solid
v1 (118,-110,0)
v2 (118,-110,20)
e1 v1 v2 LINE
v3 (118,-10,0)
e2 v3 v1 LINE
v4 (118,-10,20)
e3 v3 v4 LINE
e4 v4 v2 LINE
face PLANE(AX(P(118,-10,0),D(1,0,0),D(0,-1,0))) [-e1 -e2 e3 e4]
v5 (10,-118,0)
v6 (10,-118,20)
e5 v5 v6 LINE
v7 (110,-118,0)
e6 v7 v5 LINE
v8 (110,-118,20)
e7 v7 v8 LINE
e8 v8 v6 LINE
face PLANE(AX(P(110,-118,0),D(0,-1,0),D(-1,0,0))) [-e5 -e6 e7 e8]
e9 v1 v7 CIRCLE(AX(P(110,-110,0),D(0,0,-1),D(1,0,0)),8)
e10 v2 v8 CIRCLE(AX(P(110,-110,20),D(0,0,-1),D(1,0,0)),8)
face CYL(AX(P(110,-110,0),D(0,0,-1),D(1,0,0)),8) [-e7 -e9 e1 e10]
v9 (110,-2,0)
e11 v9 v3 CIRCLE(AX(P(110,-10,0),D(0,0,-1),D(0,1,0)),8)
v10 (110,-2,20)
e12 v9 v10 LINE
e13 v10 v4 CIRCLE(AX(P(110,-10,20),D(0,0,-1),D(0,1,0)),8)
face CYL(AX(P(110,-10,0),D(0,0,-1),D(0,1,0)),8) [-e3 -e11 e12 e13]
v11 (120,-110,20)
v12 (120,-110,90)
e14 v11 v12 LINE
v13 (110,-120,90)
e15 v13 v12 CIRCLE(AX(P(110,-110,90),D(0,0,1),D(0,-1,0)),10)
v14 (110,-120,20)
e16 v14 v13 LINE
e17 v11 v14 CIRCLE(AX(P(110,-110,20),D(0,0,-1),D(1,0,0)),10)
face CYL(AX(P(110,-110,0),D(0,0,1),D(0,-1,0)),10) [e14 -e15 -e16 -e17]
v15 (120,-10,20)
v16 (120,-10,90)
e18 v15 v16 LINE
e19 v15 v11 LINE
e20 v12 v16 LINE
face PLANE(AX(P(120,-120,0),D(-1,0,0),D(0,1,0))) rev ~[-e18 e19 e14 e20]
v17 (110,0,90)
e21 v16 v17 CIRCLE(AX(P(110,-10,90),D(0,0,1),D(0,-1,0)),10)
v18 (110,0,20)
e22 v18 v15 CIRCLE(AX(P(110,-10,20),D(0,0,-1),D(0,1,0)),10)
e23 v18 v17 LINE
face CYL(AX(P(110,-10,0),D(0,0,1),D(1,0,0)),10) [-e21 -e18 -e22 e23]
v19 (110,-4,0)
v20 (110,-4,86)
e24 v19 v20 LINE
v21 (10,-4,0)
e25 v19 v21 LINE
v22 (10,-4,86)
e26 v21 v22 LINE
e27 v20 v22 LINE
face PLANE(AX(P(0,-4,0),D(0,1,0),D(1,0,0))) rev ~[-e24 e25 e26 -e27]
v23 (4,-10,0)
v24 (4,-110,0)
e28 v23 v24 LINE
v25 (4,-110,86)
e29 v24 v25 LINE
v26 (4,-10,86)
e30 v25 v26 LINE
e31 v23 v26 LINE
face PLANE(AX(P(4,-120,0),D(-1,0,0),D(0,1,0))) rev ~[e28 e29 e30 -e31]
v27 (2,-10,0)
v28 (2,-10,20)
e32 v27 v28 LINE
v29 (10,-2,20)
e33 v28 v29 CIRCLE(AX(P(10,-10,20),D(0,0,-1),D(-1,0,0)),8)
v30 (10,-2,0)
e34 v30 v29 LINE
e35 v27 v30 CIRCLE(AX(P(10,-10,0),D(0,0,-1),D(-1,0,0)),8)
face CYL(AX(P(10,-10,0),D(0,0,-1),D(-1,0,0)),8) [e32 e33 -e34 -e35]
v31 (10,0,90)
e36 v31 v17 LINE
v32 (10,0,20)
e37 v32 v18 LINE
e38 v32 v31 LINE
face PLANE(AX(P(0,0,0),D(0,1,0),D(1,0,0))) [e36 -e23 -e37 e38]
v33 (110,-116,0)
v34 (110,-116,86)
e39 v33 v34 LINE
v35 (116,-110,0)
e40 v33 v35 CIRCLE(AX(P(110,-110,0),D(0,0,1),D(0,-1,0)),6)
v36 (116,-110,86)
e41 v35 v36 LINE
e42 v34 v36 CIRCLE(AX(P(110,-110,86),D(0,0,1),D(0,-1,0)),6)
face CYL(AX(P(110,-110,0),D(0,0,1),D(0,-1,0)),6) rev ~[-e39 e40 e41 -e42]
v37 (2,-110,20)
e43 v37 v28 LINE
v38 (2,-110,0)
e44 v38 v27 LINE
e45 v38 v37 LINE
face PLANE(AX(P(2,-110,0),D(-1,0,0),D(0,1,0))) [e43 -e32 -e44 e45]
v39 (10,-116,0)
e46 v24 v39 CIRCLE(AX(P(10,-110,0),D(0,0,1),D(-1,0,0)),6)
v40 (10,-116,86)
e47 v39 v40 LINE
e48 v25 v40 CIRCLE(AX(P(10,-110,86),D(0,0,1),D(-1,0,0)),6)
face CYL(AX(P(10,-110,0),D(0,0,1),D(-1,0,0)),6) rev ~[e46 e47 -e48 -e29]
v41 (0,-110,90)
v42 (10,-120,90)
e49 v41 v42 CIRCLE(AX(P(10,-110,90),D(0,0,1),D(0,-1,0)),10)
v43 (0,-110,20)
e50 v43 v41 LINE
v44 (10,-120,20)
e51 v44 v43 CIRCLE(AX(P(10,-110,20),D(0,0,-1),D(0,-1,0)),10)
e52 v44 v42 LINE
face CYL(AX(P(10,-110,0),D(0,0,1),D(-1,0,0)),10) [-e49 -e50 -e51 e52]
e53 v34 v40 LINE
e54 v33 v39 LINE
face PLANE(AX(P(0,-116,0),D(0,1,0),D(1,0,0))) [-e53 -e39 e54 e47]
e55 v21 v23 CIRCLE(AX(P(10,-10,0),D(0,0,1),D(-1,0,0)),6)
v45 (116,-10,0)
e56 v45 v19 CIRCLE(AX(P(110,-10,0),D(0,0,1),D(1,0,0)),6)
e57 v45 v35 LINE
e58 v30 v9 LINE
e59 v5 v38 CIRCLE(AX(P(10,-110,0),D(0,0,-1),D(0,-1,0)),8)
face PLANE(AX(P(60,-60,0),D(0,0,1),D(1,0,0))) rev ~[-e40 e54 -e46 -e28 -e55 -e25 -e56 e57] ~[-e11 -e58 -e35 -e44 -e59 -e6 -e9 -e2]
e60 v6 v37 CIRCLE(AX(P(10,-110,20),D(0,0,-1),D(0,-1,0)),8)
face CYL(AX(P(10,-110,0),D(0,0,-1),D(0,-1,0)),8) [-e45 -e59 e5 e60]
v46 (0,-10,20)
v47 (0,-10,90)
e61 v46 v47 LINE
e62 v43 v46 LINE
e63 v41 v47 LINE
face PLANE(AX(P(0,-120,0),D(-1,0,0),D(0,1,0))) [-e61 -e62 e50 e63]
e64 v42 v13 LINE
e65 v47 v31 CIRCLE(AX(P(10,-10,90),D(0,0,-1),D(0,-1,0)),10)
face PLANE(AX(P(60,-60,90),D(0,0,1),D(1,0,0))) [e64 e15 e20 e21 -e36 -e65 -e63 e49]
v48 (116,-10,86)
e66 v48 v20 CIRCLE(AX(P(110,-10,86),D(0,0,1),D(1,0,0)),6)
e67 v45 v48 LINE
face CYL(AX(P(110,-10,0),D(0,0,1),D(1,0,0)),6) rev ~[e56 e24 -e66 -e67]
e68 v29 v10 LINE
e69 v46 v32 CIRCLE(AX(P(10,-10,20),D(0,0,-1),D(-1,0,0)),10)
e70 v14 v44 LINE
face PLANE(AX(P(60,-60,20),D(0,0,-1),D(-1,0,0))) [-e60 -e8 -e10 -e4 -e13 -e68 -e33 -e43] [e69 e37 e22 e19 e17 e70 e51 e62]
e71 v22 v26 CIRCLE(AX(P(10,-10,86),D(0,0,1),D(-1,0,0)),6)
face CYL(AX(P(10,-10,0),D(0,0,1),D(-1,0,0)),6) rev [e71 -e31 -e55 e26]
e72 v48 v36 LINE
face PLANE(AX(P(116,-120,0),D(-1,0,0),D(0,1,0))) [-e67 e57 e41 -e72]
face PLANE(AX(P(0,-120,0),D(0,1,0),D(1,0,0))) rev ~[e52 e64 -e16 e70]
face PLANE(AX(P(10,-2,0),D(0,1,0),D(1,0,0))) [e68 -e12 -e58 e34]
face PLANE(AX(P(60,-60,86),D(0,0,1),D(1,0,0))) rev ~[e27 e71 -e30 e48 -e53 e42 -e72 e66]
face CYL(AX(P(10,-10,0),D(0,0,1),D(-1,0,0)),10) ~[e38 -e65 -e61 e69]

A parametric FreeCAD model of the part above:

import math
import FreeCAD as App
import Part
import Sketcher


def edges_at(feature, points):
    """Names of the edges that pass closest to the given points."""
    edges = feature.Shape.Edges
    near = lambda p: min(range(len(edges)), key=lambda i: edges[i].distToShape(Part.Vertex(*p))[0])
    return sorted({f"Edge{near(p) + 1}" for p in points})


def faces_at(feature, points):
    """Names of the faces that lie closest to the given points."""
    faces = feature.Shape.Faces
    near = lambda p: min(range(len(faces)), key=lambda i: faces[i].distToShape(Part.Vertex(*p))[0])
    return sorted({f"Face{near(p) + 1}" for p in points})

doc = App.newDocument("Part")
body = doc.addObject("PartDesign::Body", "Body")

# Sketch on XY plane
sketch1 = body.newObject("Sketcher::SketchObject", "Sketch")
sketch1.AttachmentSupport = (doc.getObject("XY_Plane"), [""])
sketch1.MapMode = "FlatFace"
sketch1.addGeometry([
    Part.LineSegment(App.Vector(0, 0, 0), App.Vector(0, -120, 0)),
    Part.LineSegment(App.Vector(0, -120, 0), App.Vector(120, -120, 0)),
    Part.LineSegment(App.Vector(120, -120, 0), App.Vector(120, 0, 0)),
    Part.LineSegment(App.Vector(120, 0, 0), App.Vector(0, 0, 0)),
], False)
sketch1.addConstraint([
    Sketcher.Constraint("Coincident", 0, 2, 1, 1),
    Sketcher.Constraint("Coincident", 1, 2, 2, 1),
    Sketcher.Constraint("Coincident", 2, 2, 3, 1),
    Sketcher.Constraint("Coincident", 3, 2, 0, 1),
    Sketcher.Constraint("Vertical", 0),
    Sketcher.Constraint("Horizontal", 1),
    Sketcher.Constraint("Vertical", 2),
    Sketcher.Constraint("Horizontal", 3),
    Sketcher.Constraint("Coincident", 3, 2, -1, 1),
    Sketcher.Constraint("Equal", 3, 0),
    Sketcher.Constraint("DistanceX", 1, 1, 1, 2, 120.0),
])
pad1 = body.newObject("PartDesign::Pad", "Pad")
pad1.Profile = sketch1
pad1.Length = 90
doc.recompute()

fillet = body.newObject("PartDesign::Fillet", "Fillet")
fillet.Base = (pad1, edges_at(pad1, [
    (0, 0, 45),
    (120, 0, 45),
    (120, -120, 45),
    (0, -120, 45),
]))
fillet.Radius = 10
doc.recompute()

thickness = body.newObject("PartDesign::Thickness", "Thickness")
thickness.Base = (fillet, faces_at(fillet, [(60, -60, 0)]))
thickness.Value = 4
thickness.Reversed = True
thickness.Join = "Intersection"

# Sketch on XY plane
sketch2 = body.newObject("Sketcher::SketchObject", "Sketch001")
sketch2.AttachmentSupport = (doc.getObject("XY_Plane"), [""])
sketch2.MapMode = "FlatFace"
sketch2.addGeometry([
    Part.LineSegment(App.Vector(120, -10, 0), App.Vector(120, -110, 0)),  # 0
    Part.ArcOfCircle(Part.Circle(App.Vector(110, -110, 0), App.Vector(0, 0, 1), 10), math.radians(-90), math.radians(0)),  # 1
    Part.LineSegment(App.Vector(110, -120, 0), App.Vector(10, -120, 0)),  # 2
    Part.ArcOfCircle(Part.Circle(App.Vector(10, -110, 0), App.Vector(0, 0, 1), 10), math.radians(180), math.radians(270)),  # 3
    Part.LineSegment(App.Vector(0, -110, 0), App.Vector(0, -10, 0)),  # 4
    Part.ArcOfCircle(Part.Circle(App.Vector(10, -10, 0), App.Vector(0, 0, 1), 10), math.radians(90), math.radians(180)),  # 5
    Part.LineSegment(App.Vector(10, 0, 0), App.Vector(110, 0, 0)),  # 6
    Part.ArcOfCircle(Part.Circle(App.Vector(110, -10, 0), App.Vector(0, 0, 1), 10), math.radians(0), math.radians(90)),  # 7
    Part.LineSegment(App.Vector(118, -110, 0), App.Vector(118, -10, 0)),  # 8
    Part.ArcOfCircle(Part.Circle(App.Vector(110, -10, 0), App.Vector(0, 0, 1), 8), math.radians(0), math.radians(90)),  # 9
    Part.LineSegment(App.Vector(110, -2, 0), App.Vector(10, -2, 0)),  # 10
    Part.ArcOfCircle(Part.Circle(App.Vector(10, -10, 0), App.Vector(0, 0, 1), 8), math.radians(90), math.radians(180)),  # 11
    Part.LineSegment(App.Vector(2, -10, 0), App.Vector(2, -110, 0)),  # 12
    Part.ArcOfCircle(Part.Circle(App.Vector(10, -110, 0), App.Vector(0, 0, 1), 8), math.radians(-180), math.radians(-90)),  # 13
    Part.LineSegment(App.Vector(10, -118, 0), App.Vector(110, -118, 0)),  # 14
    Part.ArcOfCircle(Part.Circle(App.Vector(110, -110, 0), App.Vector(0, 0, 1), 8), math.radians(-90), math.radians(0)),  # 15
], False)
sketch2.addConstraint([
    Sketcher.Constraint("Tangent", 0, 2, 1, 2),
    Sketcher.Constraint("Tangent", 1, 1, 2, 1),
    Sketcher.Constraint("Tangent", 2, 2, 3, 2),
    Sketcher.Constraint("Tangent", 3, 1, 4, 1),
    Sketcher.Constraint("Tangent", 4, 2, 5, 2),
    Sketcher.Constraint("Tangent", 5, 1, 6, 1),
    Sketcher.Constraint("Tangent", 6, 2, 7, 2),
    Sketcher.Constraint("Tangent", 7, 1, 0, 1),
    Sketcher.Constraint("Tangent", 8, 2, 9, 1),
    Sketcher.Constraint("Tangent", 9, 2, 10, 1),
    Sketcher.Constraint("Tangent", 10, 2, 11, 1),
    Sketcher.Constraint("Tangent", 11, 2, 12, 1),
    Sketcher.Constraint("Tangent", 12, 2, 13, 1),
    Sketcher.Constraint("Tangent", 13, 2, 14, 1),
    Sketcher.Constraint("Tangent", 14, 2, 15, 1),
    Sketcher.Constraint("Tangent", 15, 2, 8, 1),
    Sketcher.Constraint("Vertical", 0),
    Sketcher.Constraint("Horizontal", 2),
    Sketcher.Constraint("Vertical", 4),
    Sketcher.Constraint("Horizontal", 6),
    Sketcher.Constraint("Vertical", 8),
    Sketcher.Constraint("Horizontal", 10),
    Sketcher.Constraint("Vertical", 12),
    Sketcher.Constraint("Horizontal", 14),
    Sketcher.Constraint("Coincident", 9, 3, 7, 3),
    Sketcher.Constraint("Coincident", 11, 3, 5, 3),
    Sketcher.Constraint("Coincident", 13, 3, 3, 3),
    Sketcher.Constraint("Equal", 1, 3),
    Sketcher.Constraint("Equal", 3, 5),
    Sketcher.Constraint("Equal", 5, 7),
    Sketcher.Constraint("Equal", 13, 15),
    Sketcher.Constraint("PointOnObject", 3, 1, -2),
    Sketcher.Constraint("PointOnObject", 5, 1, -1),
    Sketcher.Constraint("Equal", 14, 0),
    Sketcher.Constraint("Radius", 1, 10.0),
    Sketcher.Constraint("Radius", 9, 8.0),
    Sketcher.Constraint("DistanceX", 2, 2, 2, 1, 100.0),
])
pocket1 = body.newObject("PartDesign::Pocket", "Pocket")
pocket1.Profile = sketch2
pocket1.Length = 20
pocket1.Reversed = True

doc.recompute()
